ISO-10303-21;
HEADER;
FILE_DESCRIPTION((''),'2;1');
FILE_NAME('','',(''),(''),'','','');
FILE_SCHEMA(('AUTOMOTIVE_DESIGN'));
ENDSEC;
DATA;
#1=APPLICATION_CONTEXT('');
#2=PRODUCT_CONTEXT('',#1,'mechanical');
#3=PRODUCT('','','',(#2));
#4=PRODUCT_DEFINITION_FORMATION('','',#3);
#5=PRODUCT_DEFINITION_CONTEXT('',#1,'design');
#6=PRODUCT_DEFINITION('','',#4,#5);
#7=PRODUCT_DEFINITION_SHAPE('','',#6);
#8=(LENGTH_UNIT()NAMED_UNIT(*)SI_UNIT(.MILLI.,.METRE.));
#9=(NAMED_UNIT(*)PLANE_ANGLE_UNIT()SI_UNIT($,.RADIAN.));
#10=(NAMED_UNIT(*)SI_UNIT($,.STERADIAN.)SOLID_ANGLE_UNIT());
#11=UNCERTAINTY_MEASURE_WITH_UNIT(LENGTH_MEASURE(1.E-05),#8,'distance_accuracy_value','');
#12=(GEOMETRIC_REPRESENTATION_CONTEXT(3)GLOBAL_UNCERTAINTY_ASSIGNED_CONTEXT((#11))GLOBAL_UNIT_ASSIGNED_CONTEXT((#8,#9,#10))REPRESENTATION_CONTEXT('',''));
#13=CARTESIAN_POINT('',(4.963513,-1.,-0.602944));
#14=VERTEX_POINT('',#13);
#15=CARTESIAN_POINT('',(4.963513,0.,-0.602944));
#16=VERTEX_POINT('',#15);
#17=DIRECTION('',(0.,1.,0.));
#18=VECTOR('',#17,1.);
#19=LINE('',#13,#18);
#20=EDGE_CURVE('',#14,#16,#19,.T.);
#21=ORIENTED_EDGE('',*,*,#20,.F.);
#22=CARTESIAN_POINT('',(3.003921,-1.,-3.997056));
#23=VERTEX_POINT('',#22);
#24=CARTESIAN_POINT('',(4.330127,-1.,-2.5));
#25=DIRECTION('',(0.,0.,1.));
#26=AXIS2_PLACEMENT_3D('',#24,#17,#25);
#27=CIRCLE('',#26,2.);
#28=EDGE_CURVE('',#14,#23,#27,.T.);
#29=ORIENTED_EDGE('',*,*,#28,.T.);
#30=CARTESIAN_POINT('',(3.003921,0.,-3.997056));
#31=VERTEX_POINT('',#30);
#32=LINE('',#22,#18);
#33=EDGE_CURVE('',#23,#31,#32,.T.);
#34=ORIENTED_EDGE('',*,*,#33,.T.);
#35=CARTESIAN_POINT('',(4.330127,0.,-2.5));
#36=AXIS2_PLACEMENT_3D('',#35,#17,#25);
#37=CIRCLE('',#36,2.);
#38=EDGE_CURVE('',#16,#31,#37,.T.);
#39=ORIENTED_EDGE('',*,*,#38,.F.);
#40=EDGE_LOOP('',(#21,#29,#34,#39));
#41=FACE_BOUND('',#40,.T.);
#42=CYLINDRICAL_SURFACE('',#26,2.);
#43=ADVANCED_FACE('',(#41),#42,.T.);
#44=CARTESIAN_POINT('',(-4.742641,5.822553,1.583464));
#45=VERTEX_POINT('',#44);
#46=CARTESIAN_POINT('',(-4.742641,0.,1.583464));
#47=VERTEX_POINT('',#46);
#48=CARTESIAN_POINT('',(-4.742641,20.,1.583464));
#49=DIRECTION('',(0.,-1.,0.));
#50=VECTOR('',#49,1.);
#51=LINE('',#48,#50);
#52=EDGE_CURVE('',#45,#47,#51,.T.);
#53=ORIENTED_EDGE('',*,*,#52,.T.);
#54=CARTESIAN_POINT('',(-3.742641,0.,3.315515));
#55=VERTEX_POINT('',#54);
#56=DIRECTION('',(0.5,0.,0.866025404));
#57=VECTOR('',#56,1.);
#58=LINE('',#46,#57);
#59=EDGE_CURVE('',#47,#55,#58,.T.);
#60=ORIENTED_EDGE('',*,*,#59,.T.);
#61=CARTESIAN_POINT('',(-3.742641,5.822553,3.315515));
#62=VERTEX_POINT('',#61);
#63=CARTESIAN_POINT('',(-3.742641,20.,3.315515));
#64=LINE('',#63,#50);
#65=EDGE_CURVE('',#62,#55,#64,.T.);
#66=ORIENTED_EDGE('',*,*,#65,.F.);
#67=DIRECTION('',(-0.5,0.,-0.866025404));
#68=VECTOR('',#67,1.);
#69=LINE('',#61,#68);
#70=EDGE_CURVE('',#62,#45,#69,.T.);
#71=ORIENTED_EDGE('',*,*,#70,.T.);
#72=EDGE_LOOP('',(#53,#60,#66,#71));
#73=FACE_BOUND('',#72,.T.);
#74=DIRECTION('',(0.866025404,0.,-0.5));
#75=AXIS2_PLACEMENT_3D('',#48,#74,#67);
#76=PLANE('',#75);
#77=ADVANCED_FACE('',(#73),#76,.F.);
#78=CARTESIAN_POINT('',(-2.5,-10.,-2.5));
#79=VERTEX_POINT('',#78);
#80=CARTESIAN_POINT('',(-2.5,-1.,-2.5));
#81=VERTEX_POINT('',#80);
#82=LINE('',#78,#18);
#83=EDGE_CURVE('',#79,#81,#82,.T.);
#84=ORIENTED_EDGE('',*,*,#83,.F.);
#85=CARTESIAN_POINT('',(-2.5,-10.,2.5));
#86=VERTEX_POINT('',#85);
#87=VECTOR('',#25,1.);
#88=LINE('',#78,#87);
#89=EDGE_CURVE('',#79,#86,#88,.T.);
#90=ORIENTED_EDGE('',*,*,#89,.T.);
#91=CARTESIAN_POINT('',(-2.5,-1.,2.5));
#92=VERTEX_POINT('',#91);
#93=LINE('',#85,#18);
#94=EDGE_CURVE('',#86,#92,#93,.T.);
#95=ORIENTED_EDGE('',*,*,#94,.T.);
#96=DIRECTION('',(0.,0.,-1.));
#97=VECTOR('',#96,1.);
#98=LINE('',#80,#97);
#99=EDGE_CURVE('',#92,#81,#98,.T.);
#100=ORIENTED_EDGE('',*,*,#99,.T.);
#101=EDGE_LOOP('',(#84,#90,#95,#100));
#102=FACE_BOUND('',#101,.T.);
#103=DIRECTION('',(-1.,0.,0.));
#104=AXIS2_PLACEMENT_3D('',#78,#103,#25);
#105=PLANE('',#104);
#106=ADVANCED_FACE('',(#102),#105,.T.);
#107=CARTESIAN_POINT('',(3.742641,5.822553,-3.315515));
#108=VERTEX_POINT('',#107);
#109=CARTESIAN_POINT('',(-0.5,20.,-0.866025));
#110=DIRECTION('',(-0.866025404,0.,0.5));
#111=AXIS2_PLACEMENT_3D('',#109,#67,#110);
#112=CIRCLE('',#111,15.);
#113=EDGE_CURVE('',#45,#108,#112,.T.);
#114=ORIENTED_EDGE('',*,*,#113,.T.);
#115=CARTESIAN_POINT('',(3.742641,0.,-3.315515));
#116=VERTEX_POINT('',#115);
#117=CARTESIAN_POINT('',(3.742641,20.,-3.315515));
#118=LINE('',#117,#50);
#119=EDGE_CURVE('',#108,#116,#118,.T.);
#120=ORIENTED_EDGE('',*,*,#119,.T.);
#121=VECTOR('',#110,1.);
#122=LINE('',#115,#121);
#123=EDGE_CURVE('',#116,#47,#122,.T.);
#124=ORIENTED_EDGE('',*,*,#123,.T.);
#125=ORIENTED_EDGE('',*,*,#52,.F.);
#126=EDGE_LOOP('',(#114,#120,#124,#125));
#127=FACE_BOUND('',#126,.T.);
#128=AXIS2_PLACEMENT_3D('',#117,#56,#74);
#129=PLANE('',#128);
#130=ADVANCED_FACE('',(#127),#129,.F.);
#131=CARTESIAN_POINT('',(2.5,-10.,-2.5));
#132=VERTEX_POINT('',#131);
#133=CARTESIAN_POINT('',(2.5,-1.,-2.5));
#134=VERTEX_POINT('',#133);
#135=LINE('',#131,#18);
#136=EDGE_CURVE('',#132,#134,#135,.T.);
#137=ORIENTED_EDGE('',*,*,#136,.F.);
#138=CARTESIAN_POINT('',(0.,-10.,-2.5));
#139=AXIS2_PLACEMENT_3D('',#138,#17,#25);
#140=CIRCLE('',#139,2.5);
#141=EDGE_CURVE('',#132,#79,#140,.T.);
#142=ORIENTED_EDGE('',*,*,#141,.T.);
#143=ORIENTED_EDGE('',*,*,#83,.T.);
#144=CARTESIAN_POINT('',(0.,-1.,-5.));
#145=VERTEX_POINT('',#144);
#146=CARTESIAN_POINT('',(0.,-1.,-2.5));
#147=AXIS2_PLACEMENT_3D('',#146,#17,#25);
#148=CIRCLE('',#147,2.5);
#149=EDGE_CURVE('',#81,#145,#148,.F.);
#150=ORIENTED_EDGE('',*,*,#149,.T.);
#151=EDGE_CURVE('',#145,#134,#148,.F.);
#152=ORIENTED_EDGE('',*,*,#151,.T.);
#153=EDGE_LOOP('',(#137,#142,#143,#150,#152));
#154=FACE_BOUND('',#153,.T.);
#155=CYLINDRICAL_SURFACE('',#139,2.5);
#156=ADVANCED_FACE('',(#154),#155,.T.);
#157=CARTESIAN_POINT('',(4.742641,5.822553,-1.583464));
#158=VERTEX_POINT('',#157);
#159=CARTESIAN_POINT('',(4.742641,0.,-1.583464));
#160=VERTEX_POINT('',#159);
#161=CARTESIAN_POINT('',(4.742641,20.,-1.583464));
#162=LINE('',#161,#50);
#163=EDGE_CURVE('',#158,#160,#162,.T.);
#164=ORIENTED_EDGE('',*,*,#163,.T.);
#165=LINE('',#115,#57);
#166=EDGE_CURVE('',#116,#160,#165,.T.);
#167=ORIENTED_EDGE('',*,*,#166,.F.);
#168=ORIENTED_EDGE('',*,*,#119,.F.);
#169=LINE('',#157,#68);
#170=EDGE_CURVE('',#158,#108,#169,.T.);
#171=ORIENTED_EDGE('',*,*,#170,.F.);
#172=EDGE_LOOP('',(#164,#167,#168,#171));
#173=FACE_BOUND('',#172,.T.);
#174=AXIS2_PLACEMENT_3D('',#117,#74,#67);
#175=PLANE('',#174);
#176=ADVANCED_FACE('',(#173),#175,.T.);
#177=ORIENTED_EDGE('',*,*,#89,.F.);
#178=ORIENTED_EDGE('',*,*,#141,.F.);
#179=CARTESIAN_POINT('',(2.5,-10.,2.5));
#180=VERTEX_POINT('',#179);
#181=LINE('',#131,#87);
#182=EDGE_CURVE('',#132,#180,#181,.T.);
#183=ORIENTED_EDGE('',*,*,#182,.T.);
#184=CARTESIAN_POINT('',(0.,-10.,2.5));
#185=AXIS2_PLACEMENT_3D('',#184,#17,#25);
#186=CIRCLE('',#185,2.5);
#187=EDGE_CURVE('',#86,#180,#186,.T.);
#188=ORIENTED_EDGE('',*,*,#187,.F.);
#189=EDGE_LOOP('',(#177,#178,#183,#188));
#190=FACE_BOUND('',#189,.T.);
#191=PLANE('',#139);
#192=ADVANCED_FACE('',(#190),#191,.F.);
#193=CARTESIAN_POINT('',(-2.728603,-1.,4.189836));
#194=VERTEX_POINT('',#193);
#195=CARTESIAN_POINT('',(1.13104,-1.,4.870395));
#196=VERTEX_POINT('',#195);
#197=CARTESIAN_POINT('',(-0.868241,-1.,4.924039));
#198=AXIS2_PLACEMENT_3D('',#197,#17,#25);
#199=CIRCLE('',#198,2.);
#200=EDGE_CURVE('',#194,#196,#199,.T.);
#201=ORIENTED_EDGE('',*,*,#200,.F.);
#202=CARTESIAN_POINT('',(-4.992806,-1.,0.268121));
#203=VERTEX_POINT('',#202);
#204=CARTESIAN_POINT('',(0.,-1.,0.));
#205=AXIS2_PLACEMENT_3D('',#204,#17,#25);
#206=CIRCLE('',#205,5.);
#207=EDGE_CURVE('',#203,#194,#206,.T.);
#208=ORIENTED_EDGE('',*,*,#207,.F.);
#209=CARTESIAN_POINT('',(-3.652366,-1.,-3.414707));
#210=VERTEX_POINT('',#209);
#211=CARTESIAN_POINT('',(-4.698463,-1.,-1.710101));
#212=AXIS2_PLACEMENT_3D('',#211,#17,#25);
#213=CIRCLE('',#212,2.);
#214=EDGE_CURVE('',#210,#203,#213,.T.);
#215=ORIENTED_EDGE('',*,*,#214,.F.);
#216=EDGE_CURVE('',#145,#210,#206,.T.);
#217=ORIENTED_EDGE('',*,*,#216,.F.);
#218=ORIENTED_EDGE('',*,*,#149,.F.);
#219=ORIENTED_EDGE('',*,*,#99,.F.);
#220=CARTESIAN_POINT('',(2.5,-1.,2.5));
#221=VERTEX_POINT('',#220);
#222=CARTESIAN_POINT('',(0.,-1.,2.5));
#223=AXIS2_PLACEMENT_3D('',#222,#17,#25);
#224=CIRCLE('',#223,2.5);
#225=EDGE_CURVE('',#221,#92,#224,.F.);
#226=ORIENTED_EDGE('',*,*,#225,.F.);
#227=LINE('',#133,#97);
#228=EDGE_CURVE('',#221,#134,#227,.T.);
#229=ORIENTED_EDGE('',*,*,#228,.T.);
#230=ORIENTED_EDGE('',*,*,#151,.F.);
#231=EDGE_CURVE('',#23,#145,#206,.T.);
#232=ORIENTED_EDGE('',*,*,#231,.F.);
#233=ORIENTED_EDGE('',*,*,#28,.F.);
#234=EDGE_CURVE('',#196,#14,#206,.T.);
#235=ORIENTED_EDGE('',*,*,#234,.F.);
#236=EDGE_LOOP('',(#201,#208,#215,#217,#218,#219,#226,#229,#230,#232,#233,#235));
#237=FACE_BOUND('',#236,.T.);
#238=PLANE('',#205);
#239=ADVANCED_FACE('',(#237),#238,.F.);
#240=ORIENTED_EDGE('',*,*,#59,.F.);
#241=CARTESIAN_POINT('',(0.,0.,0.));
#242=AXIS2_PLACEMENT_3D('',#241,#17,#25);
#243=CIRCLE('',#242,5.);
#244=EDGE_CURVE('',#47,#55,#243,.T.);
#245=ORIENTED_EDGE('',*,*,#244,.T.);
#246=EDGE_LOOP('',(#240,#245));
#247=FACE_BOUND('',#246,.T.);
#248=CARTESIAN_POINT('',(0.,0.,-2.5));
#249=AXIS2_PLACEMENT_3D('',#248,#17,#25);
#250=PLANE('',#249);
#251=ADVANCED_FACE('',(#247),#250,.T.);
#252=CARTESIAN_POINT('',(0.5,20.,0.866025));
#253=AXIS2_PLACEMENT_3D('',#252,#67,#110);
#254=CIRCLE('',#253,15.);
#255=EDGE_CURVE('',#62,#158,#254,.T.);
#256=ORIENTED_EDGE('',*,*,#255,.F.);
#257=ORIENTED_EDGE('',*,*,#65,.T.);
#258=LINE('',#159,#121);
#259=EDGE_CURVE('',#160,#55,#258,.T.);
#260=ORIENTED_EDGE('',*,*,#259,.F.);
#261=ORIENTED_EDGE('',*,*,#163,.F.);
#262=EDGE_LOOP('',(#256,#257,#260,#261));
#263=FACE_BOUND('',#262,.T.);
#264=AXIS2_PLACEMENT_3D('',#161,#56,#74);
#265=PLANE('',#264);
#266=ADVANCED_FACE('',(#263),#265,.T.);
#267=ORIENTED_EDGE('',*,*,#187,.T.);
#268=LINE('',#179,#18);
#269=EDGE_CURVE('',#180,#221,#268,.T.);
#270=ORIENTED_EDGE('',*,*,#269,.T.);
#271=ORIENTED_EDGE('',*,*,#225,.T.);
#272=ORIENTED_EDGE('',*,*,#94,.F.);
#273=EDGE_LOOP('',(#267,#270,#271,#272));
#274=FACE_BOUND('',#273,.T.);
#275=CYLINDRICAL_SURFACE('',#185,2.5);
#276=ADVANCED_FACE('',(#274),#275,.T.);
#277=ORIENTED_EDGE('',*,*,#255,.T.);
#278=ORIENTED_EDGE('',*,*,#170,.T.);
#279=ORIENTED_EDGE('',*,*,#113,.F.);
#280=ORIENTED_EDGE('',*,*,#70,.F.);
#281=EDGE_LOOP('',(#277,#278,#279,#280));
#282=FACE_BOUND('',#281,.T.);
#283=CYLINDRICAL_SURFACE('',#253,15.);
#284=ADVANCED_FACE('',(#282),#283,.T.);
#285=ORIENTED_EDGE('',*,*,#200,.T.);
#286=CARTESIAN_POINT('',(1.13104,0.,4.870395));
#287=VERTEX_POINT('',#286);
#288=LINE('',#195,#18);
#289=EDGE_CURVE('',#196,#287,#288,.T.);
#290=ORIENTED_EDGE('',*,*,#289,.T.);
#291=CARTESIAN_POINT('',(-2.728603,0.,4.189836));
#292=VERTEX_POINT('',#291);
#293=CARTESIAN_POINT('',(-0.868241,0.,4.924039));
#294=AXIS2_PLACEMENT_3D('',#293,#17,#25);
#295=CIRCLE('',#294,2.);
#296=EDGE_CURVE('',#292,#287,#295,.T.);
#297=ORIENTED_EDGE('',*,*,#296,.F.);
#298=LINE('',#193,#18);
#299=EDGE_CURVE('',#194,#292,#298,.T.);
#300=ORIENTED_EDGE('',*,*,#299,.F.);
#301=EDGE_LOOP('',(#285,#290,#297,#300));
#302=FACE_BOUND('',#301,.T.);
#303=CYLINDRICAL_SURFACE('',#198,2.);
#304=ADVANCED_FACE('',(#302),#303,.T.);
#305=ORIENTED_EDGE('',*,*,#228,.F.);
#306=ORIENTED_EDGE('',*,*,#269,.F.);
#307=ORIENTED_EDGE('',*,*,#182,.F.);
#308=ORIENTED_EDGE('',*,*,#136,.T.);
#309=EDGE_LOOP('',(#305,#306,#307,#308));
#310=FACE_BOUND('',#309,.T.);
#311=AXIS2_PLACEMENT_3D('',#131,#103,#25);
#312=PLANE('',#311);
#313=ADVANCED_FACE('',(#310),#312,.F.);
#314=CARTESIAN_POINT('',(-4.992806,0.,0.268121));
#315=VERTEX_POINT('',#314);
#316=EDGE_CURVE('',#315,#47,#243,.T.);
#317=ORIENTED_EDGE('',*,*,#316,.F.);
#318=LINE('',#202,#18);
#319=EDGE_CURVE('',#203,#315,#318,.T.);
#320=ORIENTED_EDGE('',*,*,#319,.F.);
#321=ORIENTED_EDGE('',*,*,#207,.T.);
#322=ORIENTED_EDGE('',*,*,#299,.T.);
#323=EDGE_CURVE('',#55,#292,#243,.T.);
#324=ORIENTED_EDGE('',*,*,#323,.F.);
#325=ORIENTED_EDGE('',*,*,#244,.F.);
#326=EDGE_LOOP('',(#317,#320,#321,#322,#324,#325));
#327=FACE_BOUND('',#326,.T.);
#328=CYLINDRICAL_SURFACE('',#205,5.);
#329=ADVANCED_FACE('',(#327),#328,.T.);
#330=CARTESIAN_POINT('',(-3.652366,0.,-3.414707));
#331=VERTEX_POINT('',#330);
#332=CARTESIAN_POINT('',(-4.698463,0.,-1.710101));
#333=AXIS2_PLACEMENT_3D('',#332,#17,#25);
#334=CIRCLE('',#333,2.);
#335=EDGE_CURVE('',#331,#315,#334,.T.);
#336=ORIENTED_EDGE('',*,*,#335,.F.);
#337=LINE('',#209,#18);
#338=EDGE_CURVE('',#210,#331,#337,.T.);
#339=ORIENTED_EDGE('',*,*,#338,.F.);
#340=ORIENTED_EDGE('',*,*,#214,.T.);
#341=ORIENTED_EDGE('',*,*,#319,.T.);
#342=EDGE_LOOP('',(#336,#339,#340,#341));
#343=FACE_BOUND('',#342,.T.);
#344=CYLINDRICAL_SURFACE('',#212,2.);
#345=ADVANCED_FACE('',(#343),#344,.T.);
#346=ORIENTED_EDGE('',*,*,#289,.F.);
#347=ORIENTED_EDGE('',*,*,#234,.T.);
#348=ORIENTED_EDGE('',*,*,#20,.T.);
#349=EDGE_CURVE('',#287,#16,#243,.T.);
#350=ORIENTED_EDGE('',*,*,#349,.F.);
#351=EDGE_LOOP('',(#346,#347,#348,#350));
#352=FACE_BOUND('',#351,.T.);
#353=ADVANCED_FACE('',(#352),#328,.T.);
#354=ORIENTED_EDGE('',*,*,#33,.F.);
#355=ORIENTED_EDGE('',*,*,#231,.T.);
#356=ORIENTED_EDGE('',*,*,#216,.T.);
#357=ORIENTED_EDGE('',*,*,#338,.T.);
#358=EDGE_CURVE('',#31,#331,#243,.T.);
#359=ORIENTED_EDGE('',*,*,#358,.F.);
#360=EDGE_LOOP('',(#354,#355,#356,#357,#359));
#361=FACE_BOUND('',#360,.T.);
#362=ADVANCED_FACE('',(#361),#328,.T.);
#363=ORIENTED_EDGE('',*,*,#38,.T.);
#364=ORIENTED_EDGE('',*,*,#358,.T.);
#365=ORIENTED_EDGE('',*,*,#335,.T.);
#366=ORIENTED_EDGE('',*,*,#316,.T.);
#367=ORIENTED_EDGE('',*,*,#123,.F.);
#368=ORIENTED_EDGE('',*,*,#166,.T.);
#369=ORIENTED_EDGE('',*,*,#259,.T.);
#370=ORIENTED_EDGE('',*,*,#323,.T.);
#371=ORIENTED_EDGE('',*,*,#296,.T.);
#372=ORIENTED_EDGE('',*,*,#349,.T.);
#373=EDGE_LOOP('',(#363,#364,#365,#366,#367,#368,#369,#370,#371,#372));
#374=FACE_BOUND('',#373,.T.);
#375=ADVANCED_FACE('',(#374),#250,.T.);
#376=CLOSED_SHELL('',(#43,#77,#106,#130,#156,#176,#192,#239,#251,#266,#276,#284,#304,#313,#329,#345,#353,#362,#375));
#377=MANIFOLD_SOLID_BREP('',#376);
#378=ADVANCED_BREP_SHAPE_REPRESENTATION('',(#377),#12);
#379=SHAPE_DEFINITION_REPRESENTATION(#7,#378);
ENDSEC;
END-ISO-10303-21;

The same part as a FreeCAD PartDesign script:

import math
import FreeCAD as App
import Part
import Sketcher
Q = App.Units.Quantity


def add_polygon(sketch, points):
    """Adds a closed chain of lines whose ends are joined by coincident constraints."""
    first, n = sketch.GeometryCount, len(points)
    for a, b in zip(points, points[1:] + points[:1]):
        sketch.addGeometry(Part.LineSegment(App.Vector(*a, 0), App.Vector(*b, 0)), False)
    for i in range(n):
        sketch.addConstraint(Sketcher.Constraint("Coincident", first + i, 2, first + (i + 1) % n, 1))

doc = App.newDocument("Part")
params = doc.addObject("Spreadsheet::Sheet", "Params")
for row, (alias, value) in enumerate([
    ("sketch1_radius", "2.5 mm"),
    ("sketch1_height", "5 mm"),
    ("pad1_length", "10 mm"),
    ("sketch2_radius", "5 mm"),
    ("sketch2_radius2", "2 mm"),
    ("pad2_length", "1 mm"),
    ("sketch3_length", "2 mm"),
    ("pad3_length", "20 mm"),
    ("sketch4_diameter", "30 mm"),
    ("pad4_length", "2 mm"),
], start=1):
    params.set(f"A{row}", alias)
    params.set(f"B{row}", "=" + value)
    params.setAlias(f"B{row}", alias)

body = doc.addObject("PartDesign::Body", "Body")

# Sketch on XZ plane
sketch1 = body.newObject("Sketcher::SketchObject", "Sketch")
sketch1.AttachmentSupport = (doc.getObject("XZ_Plane"), [""])
sketch1.MapMode = "FlatFace"
sketch1.addGeometry(Part.LineSegment(App.Vector(2.5, 2.5, 0), App.Vector(2.5, -2.5, 0)), False)
sketch1.addGeometry(Part.ArcOfCircle(Part.Circle(App.Vector(0, -2.5, 0), App.Vector(0, 0, 1), 2.5), math.radians(180), math.radians(360)), False)
sketch1.addGeometry(Part.LineSegment(App.Vector(-2.5, -2.5, 0), App.Vector(-2.5, 2.5, 0)), False)
sketch1.addGeometry(Part.ArcOfCircle(Part.Circle(App.Vector(0, 2.5, 0), App.Vector(0, 0, 1), 2.5), math.radians(0), math.radians(180)), False)
sketch1.addConstraint(Sketcher.Constraint("Tangent", 0, 2, 1, 2))
sketch1.addConstraint(Sketcher.Constraint("Tangent", 1, 1, 2, 1))
sketch1.addConstraint(Sketcher.Constraint("Tangent", 2, 2, 3, 2))
sketch1.addConstraint(Sketcher.Constraint("Tangent", 3, 1, 0, 1))
sketch1.addConstraint(Sketcher.Constraint("Vertical", 0))
sketch1.addConstraint(Sketcher.Constraint("Vertical", 2))
sketch1.addConstraint(Sketcher.Constraint("Symmetric", 1, 3, 3, 3, -1, 1))
sketch1.addConstraint(Sketcher.Constraint("Radius", 1, 2.5))
sketch1.addConstraint(Sketcher.Constraint("DistanceY", 0, 2, 0, 1, 5.0))
sketch1.setExpression("Constraints[7]", "Params.sketch1_radius")
sketch1.setExpression("Constraints[8]", "Params.sketch1_height")
pad1 = body.newObject("PartDesign::Pad", "Pad")
pad1.Profile = sketch1
pad1.setExpression("Length", "Params.pad1_length")

# Sketch on XZ plane
sketch2 = body.newObject("Sketcher::SketchObject", "Sketch001")
sketch2.AttachmentSupport = (doc.getObject("XZ_Plane"), [""])
sketch2.MapMode = "FlatFace"
sketch2.addGeometry(Part.ArcOfCircle(Part.Circle(App.Vector(0, 0, 0), App.Vector(0, 0, 1), 5), math.radians(-136.926082), math.radians(-53.073918)), False)
sketch2.addGeometry(Part.ArcOfCircle(Part.Circle(App.Vector(-4.698463, -1.710101, 0), App.Vector(0, 0, 1), 2), math.radians(98.463041), math.radians(301.536959)), False)
sketch2.addGeometry(Part.ArcOfCircle(Part.Circle(App.Vector(0, 0, 0), App.Vector(0, 0, 1), 5), math.radians(123.073918), math.radians(176.926082)), False)
sketch2.addGeometry(Part.ArcOfCircle(Part.Circle(App.Vector(-0.868241, 4.924039, 0), App.Vector(0, 0, 1), 2), math.radians(-1.536959), math.radians(201.536959)), False)
sketch2.addGeometry(Part.ArcOfCircle(Part.Circle(App.Vector(0, 0, 0), App.Vector(0, 0, 1), 5), math.radians(-6.926082), math.radians(76.926082)), False)
sketch2.addGeometry(Part.ArcOfCircle(Part.Circle(App.Vector(4.330127, -2.5, 0), App.Vector(0, 0, 1), 2), math.radians(-131.536959), math.radians(71.536959)), False)
sketch2.addConstraint(Sketcher.Constraint("Coincident", 0, 1, 1, 2))
sketch2.addConstraint(Sketcher.Constraint("Coincident", 1, 1, 2, 2))
sketch2.addConstraint(Sketcher.Constraint("Coincident", 2, 1, 3, 2))
sketch2.addConstraint(Sketcher.Constraint("Coincident", 3, 1, 4, 2))
sketch2.addConstraint(Sketcher.Constraint("Coincident", 4, 1, 5, 2))
sketch2.addConstraint(Sketcher.Constraint("Coincident", 5, 1, 0, 2))
sketch2.addConstraint(Sketcher.Constraint("Coincident", 0, 3, -1, 1))
sketch2.addConstraint(Sketcher.Constraint("Coincident", 2, 3, -1, 1))
sketch2.addConstraint(Sketcher.Constraint("Coincident", 4, 3, -1, 1))
sketch2.addConstraint(Sketcher.Constraint("Equal", 0, 2))
sketch2.addConstraint(Sketcher.Constraint("Equal", 1, 3))
sketch2.addConstraint(Sketcher.Constraint("Equal", 2, 4))
sketch2.addConstraint(Sketcher.Constraint("Equal", 3, 5))
sketch2.addConstraint(Sketcher.Constraint("Radius", 0, 5.0))
sketch2.addConstraint(Sketcher.Constraint("Radius", 1, 2.0))
sketch2.addConstraint(Sketcher.Constraint("DistanceY", 5, 3, -1, 1, 2.5))
sketch2.addConstraint(Sketcher.Constraint("DistanceY", 1, 3, -1, 1, 1.710101))
sketch2.addConstraint(Sketcher.Constraint("DistanceX", 3, 3, -1, 1, 0.868241))
sketch2.addConstraint(Sketcher.Constraint("DistanceY", -1, 1, 3, 3, 4.924039))
sketch2.addConstraint(Sketcher.Constraint("DistanceY", -1, 1, 1, 1, 0.268121))
sketch2.addConstraint(Sketcher.Constraint("DistanceX", -1, 1, 5, 1, 3.003921))
sketch2.setExpression("Constraints[13]", "Params.sketch2_radius")
sketch2.setExpression("Constraints[14]", "Params.sketch2_radius2")
pad2 = body.newObject("PartDesign::Pad", "Pad001")
pad2.Profile = sketch2
pad2.setExpression("Length", "Params.pad2_length")

# Sketch on XZ plane
sketch3 = body.newObject("Sketcher::SketchObject", "Sketch002")
sketch3.AttachmentSupport = (doc.getObject("XZ_Plane"), [""])
sketch3.MapMode = "FlatFace"
add_polygon(sketch3, [(4.742641, -1.583464), (3.742641, -3.315515), (-4.742641, 1.583464), (-3.742641, 3.315515)])  # lines 0-3
sketch3.addConstraint(Sketcher.Constraint("Symmetric", 0, 2, 2, 2, -1, 1))
sketch3.addConstraint(Sketcher.Constraint("Symmetric", 1, 2, 3, 2, -1, 1))
sketch3.addConstraint(Sketcher.Constraint("Perpendicular", 0, 1))
sketch3.addConstraint(Sketcher.Constraint("Angle", 0, Q("-120 deg")))
sketch3.addConstraint(Sketcher.Constraint("Distance", 0, 2.0))
sketch3.addConstraint(Sketcher.Constraint("Distance", 1, 9.797959))
sketch3.setExpression("Constraints[8]", "Params.sketch3_length")
pad3 = body.newObject("PartDesign::Pad", "Pad002")
pad3.Profile = sketch3
pad3.setExpression("Length", "Params.pad3_length")
pad3.Reversed = True

# Sketch on an angled plane
sketch4 = body.newObject("Sketcher::SketchObject", "Sketch003")
sketch4.Placement = App.Placement(App.Vector(-0.5, 0, -0.866025), App.Rotation(App.Vector(-0.866025404, 0, 0.5), App.Vector(0, 1, 0), App.Vector(-0.5, 0, -0.866025404), "ZXY"))
sketch4.addGeometry(Part.Circle(App.Vector(0, 20, 0), App.Vector(0, 0, 1), 15), False)
sketch4.addConstraint(Sketcher.Constraint("PointOnObject", 0, 3, -2))
sketch4.addConstraint(Sketcher.Constraint("Diameter", 0, 30.0))
sketch4.addConstraint(Sketcher.Constraint("DistanceY", -1, 1, 0, 3, 20.0))
sketch4.setExpression("Constraints[1]", "Params.sketch4_diameter")
pad4 = body.newObject("PartDesign::Pad", "Pad003")
pad4.Profile = sketch4
pad4.setExpression("Length", "Params.pad4_length")
pad4.Reversed = True

doc.recompute()
